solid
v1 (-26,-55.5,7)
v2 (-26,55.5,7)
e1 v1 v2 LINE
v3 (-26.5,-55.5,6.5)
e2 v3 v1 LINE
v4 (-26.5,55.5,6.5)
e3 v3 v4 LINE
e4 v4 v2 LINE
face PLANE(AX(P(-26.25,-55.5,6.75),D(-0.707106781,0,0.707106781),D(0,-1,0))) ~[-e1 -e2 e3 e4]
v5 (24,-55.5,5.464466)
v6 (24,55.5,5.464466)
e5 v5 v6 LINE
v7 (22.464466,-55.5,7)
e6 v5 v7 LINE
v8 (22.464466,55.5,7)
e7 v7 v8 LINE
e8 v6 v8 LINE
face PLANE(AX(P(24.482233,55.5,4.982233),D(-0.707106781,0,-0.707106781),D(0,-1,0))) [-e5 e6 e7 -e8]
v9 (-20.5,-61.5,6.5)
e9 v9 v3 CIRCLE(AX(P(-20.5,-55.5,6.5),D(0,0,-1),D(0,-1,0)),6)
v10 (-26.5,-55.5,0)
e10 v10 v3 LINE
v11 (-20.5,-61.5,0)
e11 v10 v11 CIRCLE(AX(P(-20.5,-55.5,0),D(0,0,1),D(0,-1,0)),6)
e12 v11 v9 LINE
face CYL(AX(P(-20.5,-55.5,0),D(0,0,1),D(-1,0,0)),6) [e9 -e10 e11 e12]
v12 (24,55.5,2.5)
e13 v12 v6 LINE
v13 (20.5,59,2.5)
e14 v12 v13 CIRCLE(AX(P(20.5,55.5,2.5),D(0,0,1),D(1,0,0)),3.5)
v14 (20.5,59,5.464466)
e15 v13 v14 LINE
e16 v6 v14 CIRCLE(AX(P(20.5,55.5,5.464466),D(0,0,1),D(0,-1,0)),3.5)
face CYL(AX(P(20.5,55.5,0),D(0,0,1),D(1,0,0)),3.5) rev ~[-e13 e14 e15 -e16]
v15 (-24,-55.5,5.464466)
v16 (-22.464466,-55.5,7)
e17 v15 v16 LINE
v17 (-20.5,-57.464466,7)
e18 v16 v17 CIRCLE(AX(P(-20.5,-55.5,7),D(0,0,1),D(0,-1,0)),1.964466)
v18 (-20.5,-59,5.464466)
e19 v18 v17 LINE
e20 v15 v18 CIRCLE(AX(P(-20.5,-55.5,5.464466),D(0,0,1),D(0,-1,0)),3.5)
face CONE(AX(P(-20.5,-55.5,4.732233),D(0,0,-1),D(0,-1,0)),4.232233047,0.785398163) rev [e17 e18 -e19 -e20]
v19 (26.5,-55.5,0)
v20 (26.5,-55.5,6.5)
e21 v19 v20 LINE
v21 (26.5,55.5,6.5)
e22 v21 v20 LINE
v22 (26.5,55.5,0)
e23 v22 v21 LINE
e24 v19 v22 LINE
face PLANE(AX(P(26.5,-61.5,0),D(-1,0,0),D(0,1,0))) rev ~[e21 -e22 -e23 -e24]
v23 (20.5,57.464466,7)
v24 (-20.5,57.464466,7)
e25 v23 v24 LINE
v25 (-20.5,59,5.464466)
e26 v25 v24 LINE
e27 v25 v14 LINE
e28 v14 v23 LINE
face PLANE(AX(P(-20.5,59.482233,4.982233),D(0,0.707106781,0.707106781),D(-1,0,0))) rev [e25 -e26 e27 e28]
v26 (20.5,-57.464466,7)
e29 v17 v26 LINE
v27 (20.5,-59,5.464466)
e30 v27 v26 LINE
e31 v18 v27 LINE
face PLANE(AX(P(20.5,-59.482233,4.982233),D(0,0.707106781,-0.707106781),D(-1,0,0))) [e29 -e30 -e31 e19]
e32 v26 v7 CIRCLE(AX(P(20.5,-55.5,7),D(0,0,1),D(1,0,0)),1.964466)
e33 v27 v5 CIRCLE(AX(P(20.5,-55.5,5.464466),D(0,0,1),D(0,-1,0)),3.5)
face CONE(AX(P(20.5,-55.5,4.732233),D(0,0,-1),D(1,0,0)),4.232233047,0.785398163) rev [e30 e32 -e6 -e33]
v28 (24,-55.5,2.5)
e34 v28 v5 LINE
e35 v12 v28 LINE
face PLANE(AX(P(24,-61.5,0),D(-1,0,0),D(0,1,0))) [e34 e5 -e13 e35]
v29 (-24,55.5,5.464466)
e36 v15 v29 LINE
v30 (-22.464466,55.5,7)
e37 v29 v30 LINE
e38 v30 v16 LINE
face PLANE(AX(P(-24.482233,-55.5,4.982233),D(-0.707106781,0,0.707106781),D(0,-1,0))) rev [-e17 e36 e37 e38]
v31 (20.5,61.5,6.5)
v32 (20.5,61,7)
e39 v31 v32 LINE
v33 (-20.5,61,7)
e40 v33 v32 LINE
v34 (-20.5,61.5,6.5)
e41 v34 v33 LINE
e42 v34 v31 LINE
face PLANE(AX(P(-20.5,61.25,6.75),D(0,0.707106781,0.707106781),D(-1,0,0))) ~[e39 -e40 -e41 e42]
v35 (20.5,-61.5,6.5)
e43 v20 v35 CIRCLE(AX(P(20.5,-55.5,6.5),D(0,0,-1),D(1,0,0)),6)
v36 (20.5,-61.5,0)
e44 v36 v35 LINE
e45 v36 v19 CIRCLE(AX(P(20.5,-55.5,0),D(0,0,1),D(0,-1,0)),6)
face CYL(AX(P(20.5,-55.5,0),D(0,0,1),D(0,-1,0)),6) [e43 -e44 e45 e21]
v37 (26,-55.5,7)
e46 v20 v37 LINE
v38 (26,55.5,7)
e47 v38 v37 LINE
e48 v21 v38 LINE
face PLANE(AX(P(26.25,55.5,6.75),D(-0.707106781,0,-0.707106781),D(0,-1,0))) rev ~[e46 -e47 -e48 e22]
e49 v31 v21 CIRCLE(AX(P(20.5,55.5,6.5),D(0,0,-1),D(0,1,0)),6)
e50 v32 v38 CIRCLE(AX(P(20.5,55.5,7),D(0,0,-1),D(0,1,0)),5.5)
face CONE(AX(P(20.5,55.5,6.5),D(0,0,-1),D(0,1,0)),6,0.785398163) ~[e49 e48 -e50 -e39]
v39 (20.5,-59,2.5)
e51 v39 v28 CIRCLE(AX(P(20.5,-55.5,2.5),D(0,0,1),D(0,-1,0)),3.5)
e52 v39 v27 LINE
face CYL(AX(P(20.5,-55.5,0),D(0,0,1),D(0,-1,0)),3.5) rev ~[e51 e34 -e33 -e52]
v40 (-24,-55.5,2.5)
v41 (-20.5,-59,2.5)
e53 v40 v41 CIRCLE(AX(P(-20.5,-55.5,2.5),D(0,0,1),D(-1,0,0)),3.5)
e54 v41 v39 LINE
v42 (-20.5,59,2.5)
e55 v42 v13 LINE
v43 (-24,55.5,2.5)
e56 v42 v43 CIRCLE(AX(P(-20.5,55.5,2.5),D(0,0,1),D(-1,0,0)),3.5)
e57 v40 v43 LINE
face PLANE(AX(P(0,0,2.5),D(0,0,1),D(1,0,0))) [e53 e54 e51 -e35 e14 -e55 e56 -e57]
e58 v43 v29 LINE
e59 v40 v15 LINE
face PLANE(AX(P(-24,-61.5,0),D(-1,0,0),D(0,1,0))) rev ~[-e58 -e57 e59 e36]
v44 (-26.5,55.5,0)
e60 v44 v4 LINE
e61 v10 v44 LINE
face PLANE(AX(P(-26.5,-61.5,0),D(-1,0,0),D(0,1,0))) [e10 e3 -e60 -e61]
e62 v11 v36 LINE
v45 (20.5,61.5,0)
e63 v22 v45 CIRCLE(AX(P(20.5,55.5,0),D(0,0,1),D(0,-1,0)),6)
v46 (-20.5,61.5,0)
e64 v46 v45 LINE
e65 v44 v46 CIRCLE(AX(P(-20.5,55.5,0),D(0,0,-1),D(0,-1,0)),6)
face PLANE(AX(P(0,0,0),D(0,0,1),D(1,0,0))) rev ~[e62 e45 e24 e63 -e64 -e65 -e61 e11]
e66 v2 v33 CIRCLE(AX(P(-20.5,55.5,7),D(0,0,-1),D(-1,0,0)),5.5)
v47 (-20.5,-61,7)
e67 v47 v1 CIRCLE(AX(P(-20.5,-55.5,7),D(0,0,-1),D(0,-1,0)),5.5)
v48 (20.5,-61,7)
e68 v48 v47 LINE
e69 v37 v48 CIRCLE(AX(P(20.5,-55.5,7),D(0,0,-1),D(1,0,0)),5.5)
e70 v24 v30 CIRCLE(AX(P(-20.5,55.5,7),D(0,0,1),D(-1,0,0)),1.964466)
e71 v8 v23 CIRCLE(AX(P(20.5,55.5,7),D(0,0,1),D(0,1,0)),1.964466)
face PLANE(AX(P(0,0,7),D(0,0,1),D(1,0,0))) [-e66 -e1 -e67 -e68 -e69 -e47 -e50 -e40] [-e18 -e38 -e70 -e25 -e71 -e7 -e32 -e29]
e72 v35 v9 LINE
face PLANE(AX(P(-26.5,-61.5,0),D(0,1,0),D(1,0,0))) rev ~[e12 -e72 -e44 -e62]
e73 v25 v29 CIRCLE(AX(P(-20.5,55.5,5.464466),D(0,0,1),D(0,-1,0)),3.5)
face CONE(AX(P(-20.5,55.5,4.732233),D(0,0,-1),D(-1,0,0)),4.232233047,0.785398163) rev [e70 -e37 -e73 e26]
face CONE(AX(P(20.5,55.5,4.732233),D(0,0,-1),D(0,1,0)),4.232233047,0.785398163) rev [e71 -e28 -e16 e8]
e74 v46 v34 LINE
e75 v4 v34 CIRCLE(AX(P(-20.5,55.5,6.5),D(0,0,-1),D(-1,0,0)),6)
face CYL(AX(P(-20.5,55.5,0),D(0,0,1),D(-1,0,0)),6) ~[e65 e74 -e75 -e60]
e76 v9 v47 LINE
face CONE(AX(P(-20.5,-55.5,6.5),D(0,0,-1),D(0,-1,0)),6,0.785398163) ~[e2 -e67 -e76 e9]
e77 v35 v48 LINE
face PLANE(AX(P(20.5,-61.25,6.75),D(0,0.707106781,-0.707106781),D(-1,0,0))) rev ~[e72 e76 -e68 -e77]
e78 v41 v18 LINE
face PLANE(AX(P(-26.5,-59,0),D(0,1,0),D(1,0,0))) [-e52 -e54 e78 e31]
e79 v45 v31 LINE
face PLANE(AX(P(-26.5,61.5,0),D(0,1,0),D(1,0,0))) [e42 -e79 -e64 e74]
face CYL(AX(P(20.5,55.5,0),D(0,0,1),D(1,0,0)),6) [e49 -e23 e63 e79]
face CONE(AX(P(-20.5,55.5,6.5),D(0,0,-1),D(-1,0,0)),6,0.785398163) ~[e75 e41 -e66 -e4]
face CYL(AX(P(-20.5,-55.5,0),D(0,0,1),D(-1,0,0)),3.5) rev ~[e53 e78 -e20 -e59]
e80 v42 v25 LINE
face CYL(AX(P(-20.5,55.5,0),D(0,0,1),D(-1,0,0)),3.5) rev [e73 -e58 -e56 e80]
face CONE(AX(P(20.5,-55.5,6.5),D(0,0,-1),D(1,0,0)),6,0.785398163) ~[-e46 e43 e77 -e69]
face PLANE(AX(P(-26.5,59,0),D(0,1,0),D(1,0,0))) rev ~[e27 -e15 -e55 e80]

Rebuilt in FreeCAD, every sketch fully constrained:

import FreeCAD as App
import Part
import Sketcher
Q = App.Units.Quantity


def edges_at(feature, points):
    """Names of the edges that pass closest to the given points."""
    edges = feature.Shape.Edges
    near = lambda p: min(range(len(edges)), key=lambda i: edges[i].distToShape(Part.Vertex(*p))[0])
    return sorted({f"Edge{near(p) + 1}" for p in points})


def faces_at(feature, points):
    """Names of the faces that lie closest to the given points."""
    faces = feature.Shape.Faces
    near = lambda p: min(range(len(faces)), key=lambda i: faces[i].distToShape(Part.Vertex(*p))[0])
    return sorted({f"Face{near(p) + 1}" for p in points})


def add_polygon(sketch, points):
    """Adds a closed chain of lines whose ends are joined by coincident constraints."""
    first, n = sketch.GeometryCount, len(points)
    for a, b in zip(points, points[1:] + points[:1]):
        sketch.addGeometry(Part.LineSegment(App.Vector(*a, 0), App.Vector(*b, 0)), False)
    for i in range(n):
        sketch.addConstraint(Sketcher.Constraint("Coincident", first + i, 2, first + (i + 1) % n, 1))

doc = App.newDocument("Part")
body = doc.addObject("PartDesign::Body", "Body")

sketch1 = body.newObject("Sketcher::SketchObject", "Sketch")
sketch1.AttachmentSupport = (doc.getObject("XY_Plane"), [""])
sketch1.MapMode = "FlatFace"
add_polygon(sketch1, [(-26, 62), (-26, -62), (26, -62), (26, 62)])
sketch1.addConstraint(Sketcher.Constraint("Vertical", 0))
sketch1.addConstraint(Sketcher.Constraint("Horizontal", 1))
sketch1.addConstraint(Sketcher.Constraint("Vertical", 2))
sketch1.addConstraint(Sketcher.Constraint("Horizontal", 3))
sketch1.addConstraint(Sketcher.Constraint("Symmetric", 0, 2, 2, 2, -1, 1))
sketch1.addConstraint(Sketcher.Constraint("DistanceX", 1, 1, 1, 2, Q("53 mm")))
sketch1.addConstraint(Sketcher.Constraint("DistanceY", 0, 2, 0, 1, Q("123 mm")))
pad1 = body.newObject("PartDesign::Pad", "Pad")
pad1.Profile = sketch1
pad1.Length = 7
doc.recompute()

fillet = body.newObject("PartDesign::Fillet", "Fillet")
fillet.Base = (pad1, edges_at(pad1, [
    (26.5, 61.5, 3.5),
    (-26.5, 61.5, 3.5),
    (26.5, -61.5, 3.5),
    (-26.5, -61.5, 3.5),
]))
fillet.Radius = 6
doc.recompute()

chamfer = body.newObject("PartDesign::Chamfer", "Chamfer")
chamfer.Base = (fillet, edges_at(fillet, [
    (-26.5, 0, 7),
    (-24.743, -59.743, 7),
    (0, -61.5, 7),
    (24.743, -59.743, 7),
    (26.5, 0, 7),
    (24.743, 59.743, 7),
    (0, 61.5, 7),
    (-24.743, 59.743, 7),
]))
chamfer.Size = 0.5
doc.recompute()

thickness = body.newObject("PartDesign::Thickness", "Thickness")
thickness.Base = (chamfer, faces_at(chamfer, [(0, 0, 7)]))
thickness.Value = 2.5
thickness.Reversed = True
thickness.Join = "Arc"

doc.recompute()
